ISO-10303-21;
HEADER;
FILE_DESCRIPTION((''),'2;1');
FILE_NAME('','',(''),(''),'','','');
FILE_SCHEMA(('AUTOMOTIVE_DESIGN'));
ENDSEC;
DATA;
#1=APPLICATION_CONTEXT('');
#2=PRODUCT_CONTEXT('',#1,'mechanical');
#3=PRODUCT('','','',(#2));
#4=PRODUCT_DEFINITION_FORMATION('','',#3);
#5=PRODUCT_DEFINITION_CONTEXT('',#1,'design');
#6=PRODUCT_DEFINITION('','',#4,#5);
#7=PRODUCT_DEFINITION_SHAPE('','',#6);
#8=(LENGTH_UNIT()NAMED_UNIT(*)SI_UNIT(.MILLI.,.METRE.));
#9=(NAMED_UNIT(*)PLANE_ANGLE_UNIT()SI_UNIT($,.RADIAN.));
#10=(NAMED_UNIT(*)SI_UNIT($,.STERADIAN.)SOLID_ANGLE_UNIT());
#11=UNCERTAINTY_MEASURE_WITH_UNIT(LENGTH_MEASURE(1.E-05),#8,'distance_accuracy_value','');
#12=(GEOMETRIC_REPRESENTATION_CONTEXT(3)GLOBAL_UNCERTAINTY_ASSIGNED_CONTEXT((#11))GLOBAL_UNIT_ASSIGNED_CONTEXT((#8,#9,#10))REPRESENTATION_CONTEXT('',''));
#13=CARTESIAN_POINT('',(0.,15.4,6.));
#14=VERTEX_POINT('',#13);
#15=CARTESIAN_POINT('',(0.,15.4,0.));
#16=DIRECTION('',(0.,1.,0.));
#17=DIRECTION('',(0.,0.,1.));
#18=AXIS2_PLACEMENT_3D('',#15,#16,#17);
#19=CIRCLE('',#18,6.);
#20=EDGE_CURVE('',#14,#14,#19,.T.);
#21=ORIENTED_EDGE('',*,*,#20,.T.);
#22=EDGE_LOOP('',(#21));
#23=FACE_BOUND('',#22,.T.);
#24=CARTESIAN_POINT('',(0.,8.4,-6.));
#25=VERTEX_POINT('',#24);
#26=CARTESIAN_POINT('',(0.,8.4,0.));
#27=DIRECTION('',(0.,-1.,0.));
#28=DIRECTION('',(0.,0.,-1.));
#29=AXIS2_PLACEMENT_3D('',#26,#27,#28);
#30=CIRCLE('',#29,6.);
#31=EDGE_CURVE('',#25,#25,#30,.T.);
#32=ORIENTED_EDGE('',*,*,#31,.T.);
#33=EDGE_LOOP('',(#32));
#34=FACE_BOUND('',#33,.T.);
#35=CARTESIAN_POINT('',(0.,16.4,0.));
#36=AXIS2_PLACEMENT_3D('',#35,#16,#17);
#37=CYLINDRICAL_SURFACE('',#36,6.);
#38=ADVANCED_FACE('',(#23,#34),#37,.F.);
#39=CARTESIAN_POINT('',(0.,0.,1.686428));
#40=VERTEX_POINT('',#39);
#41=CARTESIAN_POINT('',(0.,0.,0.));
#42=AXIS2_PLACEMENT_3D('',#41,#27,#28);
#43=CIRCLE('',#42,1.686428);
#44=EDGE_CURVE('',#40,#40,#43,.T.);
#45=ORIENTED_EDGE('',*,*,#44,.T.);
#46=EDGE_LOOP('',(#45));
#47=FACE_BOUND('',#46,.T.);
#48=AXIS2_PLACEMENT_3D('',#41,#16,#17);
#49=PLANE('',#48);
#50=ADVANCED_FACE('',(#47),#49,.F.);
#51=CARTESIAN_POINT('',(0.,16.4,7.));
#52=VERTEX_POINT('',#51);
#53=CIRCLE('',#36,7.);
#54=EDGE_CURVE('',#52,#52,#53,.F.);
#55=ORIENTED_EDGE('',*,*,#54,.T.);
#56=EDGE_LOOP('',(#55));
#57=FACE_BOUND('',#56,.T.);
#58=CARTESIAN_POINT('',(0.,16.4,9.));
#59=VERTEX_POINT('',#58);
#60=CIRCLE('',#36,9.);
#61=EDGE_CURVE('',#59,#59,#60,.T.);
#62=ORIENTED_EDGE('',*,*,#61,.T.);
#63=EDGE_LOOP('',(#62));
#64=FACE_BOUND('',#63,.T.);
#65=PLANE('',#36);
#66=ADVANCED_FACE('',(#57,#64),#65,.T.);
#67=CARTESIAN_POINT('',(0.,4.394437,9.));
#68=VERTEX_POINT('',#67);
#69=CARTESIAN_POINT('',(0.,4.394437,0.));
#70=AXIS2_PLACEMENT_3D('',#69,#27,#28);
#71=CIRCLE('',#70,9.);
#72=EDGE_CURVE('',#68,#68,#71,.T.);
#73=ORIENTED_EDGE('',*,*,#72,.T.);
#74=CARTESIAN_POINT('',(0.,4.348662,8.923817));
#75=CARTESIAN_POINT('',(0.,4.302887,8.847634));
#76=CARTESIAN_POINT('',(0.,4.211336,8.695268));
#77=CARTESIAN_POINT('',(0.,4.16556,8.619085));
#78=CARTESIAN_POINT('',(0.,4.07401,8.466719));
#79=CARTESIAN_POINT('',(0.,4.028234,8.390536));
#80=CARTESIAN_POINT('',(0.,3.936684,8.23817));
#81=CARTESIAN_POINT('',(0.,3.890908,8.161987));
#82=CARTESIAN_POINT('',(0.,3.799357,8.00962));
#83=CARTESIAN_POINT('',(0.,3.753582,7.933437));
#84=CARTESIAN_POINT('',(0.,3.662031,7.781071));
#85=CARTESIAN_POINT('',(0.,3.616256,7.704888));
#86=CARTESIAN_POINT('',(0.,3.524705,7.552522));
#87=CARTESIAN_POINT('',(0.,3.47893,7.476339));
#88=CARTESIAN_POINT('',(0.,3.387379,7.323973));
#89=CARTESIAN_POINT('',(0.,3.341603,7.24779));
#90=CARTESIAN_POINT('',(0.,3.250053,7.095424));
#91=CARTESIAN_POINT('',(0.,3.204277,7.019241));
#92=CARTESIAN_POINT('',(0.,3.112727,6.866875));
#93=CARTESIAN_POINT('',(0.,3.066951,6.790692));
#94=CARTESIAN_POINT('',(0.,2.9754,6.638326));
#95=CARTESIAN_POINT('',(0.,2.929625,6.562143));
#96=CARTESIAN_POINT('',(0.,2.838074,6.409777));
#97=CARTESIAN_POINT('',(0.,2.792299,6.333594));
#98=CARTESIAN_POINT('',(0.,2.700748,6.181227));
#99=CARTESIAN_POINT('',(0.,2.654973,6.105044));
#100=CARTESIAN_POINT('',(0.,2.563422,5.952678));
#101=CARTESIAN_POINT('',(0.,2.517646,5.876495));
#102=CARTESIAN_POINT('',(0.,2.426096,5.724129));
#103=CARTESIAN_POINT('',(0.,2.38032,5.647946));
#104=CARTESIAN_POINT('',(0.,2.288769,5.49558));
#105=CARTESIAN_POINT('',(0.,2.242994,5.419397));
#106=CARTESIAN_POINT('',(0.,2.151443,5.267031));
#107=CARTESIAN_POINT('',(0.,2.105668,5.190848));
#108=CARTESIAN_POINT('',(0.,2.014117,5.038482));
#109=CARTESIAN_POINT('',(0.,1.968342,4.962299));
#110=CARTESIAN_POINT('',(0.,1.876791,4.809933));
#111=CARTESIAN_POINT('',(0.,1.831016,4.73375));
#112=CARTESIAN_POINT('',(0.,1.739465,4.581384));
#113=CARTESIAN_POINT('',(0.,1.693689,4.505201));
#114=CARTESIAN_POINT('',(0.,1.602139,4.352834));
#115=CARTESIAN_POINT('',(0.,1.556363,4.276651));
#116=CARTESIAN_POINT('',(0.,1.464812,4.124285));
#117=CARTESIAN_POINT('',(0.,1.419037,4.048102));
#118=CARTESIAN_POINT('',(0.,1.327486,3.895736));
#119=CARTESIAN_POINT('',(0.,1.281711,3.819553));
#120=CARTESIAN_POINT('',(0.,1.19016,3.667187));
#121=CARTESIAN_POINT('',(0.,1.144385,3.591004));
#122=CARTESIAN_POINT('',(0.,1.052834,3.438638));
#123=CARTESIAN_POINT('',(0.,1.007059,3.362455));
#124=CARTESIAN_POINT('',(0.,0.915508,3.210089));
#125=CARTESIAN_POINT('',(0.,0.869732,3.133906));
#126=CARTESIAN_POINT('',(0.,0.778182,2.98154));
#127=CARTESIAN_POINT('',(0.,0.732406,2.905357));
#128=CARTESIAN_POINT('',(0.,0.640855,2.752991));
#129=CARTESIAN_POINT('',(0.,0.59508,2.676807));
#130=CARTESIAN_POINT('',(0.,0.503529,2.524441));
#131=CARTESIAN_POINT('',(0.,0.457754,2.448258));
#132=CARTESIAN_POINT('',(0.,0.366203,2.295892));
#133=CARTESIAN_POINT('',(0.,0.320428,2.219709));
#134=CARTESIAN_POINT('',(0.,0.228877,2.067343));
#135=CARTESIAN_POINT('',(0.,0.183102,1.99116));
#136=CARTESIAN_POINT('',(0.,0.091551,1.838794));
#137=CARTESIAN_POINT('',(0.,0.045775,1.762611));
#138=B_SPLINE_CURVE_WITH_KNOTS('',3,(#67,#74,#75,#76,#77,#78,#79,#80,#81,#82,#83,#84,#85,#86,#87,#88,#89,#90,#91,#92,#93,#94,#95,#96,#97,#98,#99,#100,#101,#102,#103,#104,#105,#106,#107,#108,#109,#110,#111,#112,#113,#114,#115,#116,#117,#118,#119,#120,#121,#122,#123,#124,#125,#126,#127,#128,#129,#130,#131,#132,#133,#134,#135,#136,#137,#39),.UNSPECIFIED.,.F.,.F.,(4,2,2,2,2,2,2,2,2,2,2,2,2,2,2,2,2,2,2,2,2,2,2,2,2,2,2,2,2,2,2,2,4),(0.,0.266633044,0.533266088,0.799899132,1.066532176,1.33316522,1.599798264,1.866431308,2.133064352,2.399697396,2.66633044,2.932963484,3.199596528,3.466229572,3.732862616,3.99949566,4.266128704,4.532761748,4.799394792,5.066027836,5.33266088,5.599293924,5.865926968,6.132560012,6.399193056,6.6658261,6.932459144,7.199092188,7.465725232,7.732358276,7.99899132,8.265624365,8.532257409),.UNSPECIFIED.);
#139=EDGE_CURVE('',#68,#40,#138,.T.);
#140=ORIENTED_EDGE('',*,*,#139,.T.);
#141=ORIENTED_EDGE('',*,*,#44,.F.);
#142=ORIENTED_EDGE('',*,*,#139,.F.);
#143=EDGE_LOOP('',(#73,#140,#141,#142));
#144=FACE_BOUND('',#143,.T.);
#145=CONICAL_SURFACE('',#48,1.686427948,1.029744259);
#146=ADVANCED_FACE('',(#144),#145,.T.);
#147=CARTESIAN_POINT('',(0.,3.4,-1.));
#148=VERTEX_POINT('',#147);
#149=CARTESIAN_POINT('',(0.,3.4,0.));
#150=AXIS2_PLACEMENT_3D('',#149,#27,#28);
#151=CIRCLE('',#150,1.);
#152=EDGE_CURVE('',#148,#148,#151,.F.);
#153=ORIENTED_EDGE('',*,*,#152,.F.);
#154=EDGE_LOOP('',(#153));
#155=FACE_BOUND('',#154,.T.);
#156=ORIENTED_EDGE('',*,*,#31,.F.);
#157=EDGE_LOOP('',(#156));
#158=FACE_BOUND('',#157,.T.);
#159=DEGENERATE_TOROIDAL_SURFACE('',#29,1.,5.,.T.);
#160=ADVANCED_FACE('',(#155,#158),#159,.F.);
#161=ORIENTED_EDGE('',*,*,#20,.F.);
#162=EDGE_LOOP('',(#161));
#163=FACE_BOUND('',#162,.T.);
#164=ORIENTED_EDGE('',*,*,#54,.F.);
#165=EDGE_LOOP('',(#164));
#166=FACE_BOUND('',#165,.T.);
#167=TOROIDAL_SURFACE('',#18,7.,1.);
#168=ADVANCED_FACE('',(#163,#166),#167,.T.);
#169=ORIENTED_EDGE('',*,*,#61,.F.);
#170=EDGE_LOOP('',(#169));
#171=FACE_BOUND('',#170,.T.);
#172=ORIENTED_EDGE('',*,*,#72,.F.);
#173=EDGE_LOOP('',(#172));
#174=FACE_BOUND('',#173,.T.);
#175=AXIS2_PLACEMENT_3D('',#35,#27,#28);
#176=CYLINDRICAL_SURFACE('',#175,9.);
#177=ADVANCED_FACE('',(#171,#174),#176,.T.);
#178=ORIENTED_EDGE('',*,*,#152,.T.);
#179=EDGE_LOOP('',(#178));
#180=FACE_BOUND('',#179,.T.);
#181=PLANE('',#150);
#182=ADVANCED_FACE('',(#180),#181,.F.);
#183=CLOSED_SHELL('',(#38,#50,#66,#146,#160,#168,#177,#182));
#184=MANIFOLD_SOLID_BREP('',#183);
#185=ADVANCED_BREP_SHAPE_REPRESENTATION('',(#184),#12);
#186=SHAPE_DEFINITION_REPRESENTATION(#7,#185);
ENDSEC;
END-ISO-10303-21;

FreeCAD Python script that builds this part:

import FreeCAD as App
import Part
import Sketcher
Q = App.Units.Quantity


def edges_at(feature, points):
    """Names of the edges that pass closest to the given points."""
    edges = feature.Shape.Edges
    near = lambda p: min(range(len(edges)), key=lambda i: edges[i].distToShape(Part.Vertex(*p))[0])
    return sorted({f"Edge{near(p) + 1}" for p in points})

doc = App.newDocument("Part")
params = doc.addObject("Spreadsheet::Sheet", "Params")
for row, (alias, value) in enumerate([
    ("sketch1_diameter", "18 mm"),
    ("pad1_length", "16.4 mm"),
    ("sketch2_width", "13 mm"),
    ("sketch2_height", "6 mm"),
    ("groove_angle", "360 deg"),
    ("groove2_angle", "360 deg"),
    ("fillet_radius", "5 mm"),
    ("fillet2_radius", "1 mm"),
], start=1):
    params.set(f"A{row}", alias)
    params.set(f"B{row}", "=" + value)
    params.setAlias(f"B{row}", alias)

body = doc.addObject("PartDesign::Body", "Body")

sketch1 = body.newObject("Sketcher::SketchObject", "Sketch")
sketch1.AttachmentSupport = (doc.getObject("XZ_Plane"), [""])
sketch1.MapMode = "FlatFace"
sketch1.addGeometry(Part.Circle(App.Vector(0, 0, 0), App.Vector(0, 0, 1), 9), False)
sketch1.addConstraint([
    Sketcher.Constraint("Coincident", 0, 3, -1, 1),
    Sketcher.Constraint("Diameter", 0, Q("18 mm")),
])
sketch1.setExpression("Constraints[1]", "Params.sketch1_diameter")
pad1 = body.newObject("PartDesign::Pad", "Pad")
pad1.Profile = sketch1
pad1.setExpression("Length", "Params.pad1_length")
pad1.Reversed = True

sketch2 = body.newObject("Sketcher::SketchObject", "Sketch001")
sketch2.AttachmentSupport = (doc.getObject("YZ_Plane"), [""])
sketch2.MapMode = "FlatFace"
sketch2.addGeometry([
    Part.LineSegment(App.Vector(3.4, 0, 0), App.Vector(16.4, 0, 0)),
    Part.LineSegment(App.Vector(16.4, 0, 0), App.Vector(16.4, 6, 0)),
    Part.LineSegment(App.Vector(16.4, 6, 0), App.Vector(3.4, 6, 0)),
    Part.LineSegment(App.Vector(3.4, 6, 0), App.Vector(3.4, 0, 0)),
], False)
sketch2.addConstraint([
    Sketcher.Constraint("Coincident", 0, 2, 1, 1),
    Sketcher.Constraint("Coincident", 1, 2, 2, 1),
    Sketcher.Constraint("Coincident", 2, 2, 3, 1),
    Sketcher.Constraint("Coincident", 3, 2, 0, 1),
    Sketcher.Constraint("Horizontal", 0),
    Sketcher.Constraint("Vertical", 1),
    Sketcher.Constraint("Horizontal", 2),
    Sketcher.Constraint("Vertical", 3),
    Sketcher.Constraint("PointOnObject", 0, 2, -1),
    Sketcher.Constraint("DistanceX", 0, 1, 0, 2, Q("13 mm")),
    Sketcher.Constraint("DistanceY", 1, 1, 1, 2, Q("6 mm")),
    Sketcher.Constraint("DistanceX", -1, 1, 0, 2, Q("16.4 mm")),
])
sketch2.setExpression("Constraints[9]", "Params.sketch2_width")
sketch2.setExpression("Constraints[10]", "Params.sketch2_height")
groove = body.newObject("PartDesign::Groove", "Groove")
groove.Profile = sketch2
groove.ReferenceAxis = (sketch2, ["H_Axis"])
groove.setExpression("Angle", "Params.groove_angle")

sketch3 = body.newObject("Sketcher::SketchObject", "Sketch002")
sketch3.AttachmentSupport = (doc.getObject("YZ_Plane"), [""])
sketch3.MapMode = "FlatFace"
sketch3.addGeometry([
    Part.LineSegment(App.Vector(0, 9, 0), App.Vector(0, 1.686428, 0)),
    Part.LineSegment(App.Vector(0, 1.686428, 0), App.Vector(4.394437, 9, 0)),
    Part.LineSegment(App.Vector(4.394437, 9, 0), App.Vector(0, 9, 0)),
], False)
sketch3.addConstraint([
    Sketcher.Constraint("Coincident", 0, 2, 1, 1),
    Sketcher.Constraint("Coincident", 1, 2, 2, 1),
    Sketcher.Constraint("Coincident", 2, 2, 0, 1),
    Sketcher.Constraint("Vertical", 0),
    Sketcher.Constraint("Horizontal", 2),
    Sketcher.Constraint("PointOnObject", 0, 2, -2),
    Sketcher.Constraint("Angle", 1, Q("59 deg")),
    Sketcher.Constraint("DistanceY", -1, 1, 1, 2, Q("9 mm")),
    Sketcher.Constraint("DistanceX", 2, 2, 2, 1, Q("4.394437 mm")),
])
groove2 = body.newObject("PartDesign::Groove", "Groove001")
groove2.Profile = sketch3
groove2.ReferenceAxis = (sketch3, ["H_Axis"])
groove2.setExpression("Angle", "Params.groove2_angle")
doc.recompute()

fillet = body.newObject("PartDesign::Fillet", "Fillet")
fillet.Base = (groove2, edges_at(groove2, [(0, 3.4, -6)]))
fillet.setExpression("Radius", "Params.fillet_radius")
doc.recompute()

fillet2 = body.newObject("PartDesign::Fillet", "Fillet001")
fillet2.Base = (fillet, edges_at(fillet, [(0, 16.4, -6)]))
fillet2.setExpression("Radius", "Params.fillet2_radius")

doc.recompute()
